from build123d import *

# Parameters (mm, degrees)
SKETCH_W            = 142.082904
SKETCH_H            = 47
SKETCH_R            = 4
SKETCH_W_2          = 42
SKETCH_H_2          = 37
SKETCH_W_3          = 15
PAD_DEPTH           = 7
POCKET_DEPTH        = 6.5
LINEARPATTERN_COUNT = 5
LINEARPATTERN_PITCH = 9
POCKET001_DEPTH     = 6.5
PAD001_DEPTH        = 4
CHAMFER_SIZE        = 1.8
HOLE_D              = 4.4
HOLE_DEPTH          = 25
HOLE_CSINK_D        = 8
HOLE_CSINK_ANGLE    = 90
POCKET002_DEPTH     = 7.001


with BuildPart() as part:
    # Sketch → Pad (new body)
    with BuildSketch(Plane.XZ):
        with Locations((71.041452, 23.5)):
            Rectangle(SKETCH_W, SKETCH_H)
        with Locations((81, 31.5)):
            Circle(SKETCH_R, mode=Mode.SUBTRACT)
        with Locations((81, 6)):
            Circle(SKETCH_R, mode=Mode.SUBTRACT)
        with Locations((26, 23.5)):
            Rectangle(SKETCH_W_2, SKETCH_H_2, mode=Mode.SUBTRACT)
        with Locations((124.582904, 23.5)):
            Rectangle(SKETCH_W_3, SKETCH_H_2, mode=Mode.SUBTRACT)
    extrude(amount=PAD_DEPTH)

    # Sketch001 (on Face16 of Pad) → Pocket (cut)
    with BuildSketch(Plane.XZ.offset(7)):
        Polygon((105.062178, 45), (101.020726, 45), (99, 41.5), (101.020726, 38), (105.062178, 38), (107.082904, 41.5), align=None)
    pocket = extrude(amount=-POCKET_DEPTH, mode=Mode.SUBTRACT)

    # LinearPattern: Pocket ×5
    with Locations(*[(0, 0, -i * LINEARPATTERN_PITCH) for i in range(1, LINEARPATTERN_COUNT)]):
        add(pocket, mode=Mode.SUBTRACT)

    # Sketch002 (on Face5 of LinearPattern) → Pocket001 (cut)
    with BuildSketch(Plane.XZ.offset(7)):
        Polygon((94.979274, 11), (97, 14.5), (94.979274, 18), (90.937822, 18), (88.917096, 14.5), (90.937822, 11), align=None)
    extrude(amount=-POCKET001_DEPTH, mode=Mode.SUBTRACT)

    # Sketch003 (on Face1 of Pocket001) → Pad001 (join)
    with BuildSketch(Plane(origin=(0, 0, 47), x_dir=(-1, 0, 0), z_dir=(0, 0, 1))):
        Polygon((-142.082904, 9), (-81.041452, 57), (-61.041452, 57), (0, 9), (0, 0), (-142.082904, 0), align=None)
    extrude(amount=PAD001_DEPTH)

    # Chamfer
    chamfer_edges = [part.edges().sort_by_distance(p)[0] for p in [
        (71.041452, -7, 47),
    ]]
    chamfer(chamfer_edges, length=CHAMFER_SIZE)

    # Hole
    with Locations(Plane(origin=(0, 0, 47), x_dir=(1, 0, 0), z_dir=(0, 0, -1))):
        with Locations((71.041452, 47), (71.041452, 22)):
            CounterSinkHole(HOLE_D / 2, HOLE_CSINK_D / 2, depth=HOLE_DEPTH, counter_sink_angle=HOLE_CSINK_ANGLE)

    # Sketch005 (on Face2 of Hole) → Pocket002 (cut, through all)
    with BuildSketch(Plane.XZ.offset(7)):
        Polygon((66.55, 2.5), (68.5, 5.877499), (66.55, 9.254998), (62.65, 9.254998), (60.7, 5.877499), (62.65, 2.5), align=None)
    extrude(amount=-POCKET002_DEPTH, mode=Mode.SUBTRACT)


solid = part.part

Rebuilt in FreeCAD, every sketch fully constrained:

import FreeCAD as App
import Part
import Sketcher

V = App.Vector
Q = App.Units.Quantity


def edges_at(feature, points):
    """Names of the edges that pass closest to the given points."""
    edges = feature.Shape.Edges
    near = lambda p: min(range(len(edges)), key=lambda i: edges[i].distToShape(Part.Vertex(*p))[0])
    return sorted({f"Edge{near(p) + 1}" for p in points})


def add_polygon(sketch, points):
    """Adds a closed chain of lines whose ends are joined by coincident constraints."""
    first, n = sketch.GeometryCount, len(points)
    for a, b in zip(points, points[1:] + points[:1]):
        sketch.addGeometry(Part.LineSegment(App.Vector(*a, 0), App.Vector(*b, 0)), False)
    for i in range(n):
        sketch.addConstraint(Sketcher.Constraint("Coincident", first + i, 2, first + (i + 1) % n, 1))

doc = App.newDocument("Part")
params = doc.addObject("Spreadsheet::Sheet", "Params")
for row, (alias, value) in enumerate([
    ("sketch1_diameter", "8 mm"),
    ("sketch1_width", "42 mm"),
    ("sketch1_width2", "15 mm"),
    ("sketch1_height", "47 mm"),
    ("sketch1_height2", "37 mm"),
    ("pad1_length", "7 mm"),
    ("pocket1_length", "6.5 mm"),
    ("linearpattern_pitch", "9 mm"),
    ("pocket2_length", "6.5 mm"),
    ("sketch4_width", "20 mm"),
    ("sketch4_height", "9 mm"),
    ("pad2_length", "4 mm"),
    ("chamfer_size", "1.8 mm"),
    ("sketch5_diameter", "4.4 mm"),
    ("hole_diameter", "4.4 mm"),
    ("hole_depth", "25 mm"),
    ("hole_csink_diameter", "8 mm"),
    ("sketch6_width", "3.9 mm"),
    ("sketch6_length", "3.9 mm"),
], start=1):
    params.set(f"A{row}", alias)
    params.set(f"B{row}", "=" + value)
    params.setAlias(f"B{row}", alias)

body = doc.addObject("PartDesign::Body", "Body")

sketch1 = doc.addObject("Sketcher::SketchObject", "Sketch")
body.addObject(sketch1)
sketch1.AttachmentSupport = (doc.XZ_Plane, [""])
sketch1.MapMode = "FlatFace"
add_polygon(sketch1, [(0, 47), (0, 0), (142.1, 0), (142.1, 47)])
sketch1.addGeometry(Part.Circle(V(81, 6, 0), V(0, 0, 1), 4), False)
add_polygon(sketch1, [(47, 5), (5, 5), (5, 42), (47, 42)])
sketch1.addGeometry(Part.Circle(V(81, 31.5, 0), V(0, 0, 1), 4), False)
add_polygon(sketch1, [(132.1, 5), (117.1, 5), (117.1, 42), (132.1, 42)])
sketch1.addConstraint([
    Sketcher.Constraint("Vertical", 0),
    Sketcher.Constraint("Horizontal", 1),
    Sketcher.Constraint("Vertical", 2),
    Sketcher.Constraint("Horizontal", 3),
    Sketcher.Constraint("Horizontal", 5),
    Sketcher.Constraint("Vertical", 6),
    Sketcher.Constraint("Horizontal", 7),
    Sketcher.Constraint("Vertical", 8),
    Sketcher.Constraint("Horizontal", 10),
    Sketcher.Constraint("Vertical", 11),
    Sketcher.Constraint("Horizontal", 12),
    Sketcher.Constraint("Vertical", 13),
    Sketcher.Constraint("Coincident", 0, 2, -1, 1),
    Sketcher.Constraint("Equal", 4, 9),
    Sketcher.Constraint("Horizontal", 8, 2, 10, 2),
    Sketcher.Constraint("Horizontal", 7, 2, 11, 2),
    Sketcher.Constraint("Vertical", 4, 3, 9, 3),
    Sketcher.Constraint("Diameter", 4, Q("8 mm")),
    Sketcher.Constraint("DistanceX", 5, 2, 5, 1, Q("42 mm")),
    Sketcher.Constraint("DistanceX", 10, 2, 10, 1, Q("15 mm")),
    Sketcher.Constraint("DistanceY", 0, 2, 0, 1, Q("47 mm")),
    Sketcher.Constraint("DistanceY", 6, 1, 6, 2, Q("37 mm")),
    Sketcher.Constraint("DistanceX", -1, 1, 4, 3, Q("81 mm")),
    Sketcher.Constraint("DistanceY", -1, 1, 4, 3, Q("6 mm")),
    Sketcher.Constraint("DistanceX", -1, 1, 5, 2, Q("5 mm")),
    Sketcher.Constraint("DistanceY", -1, 1, 5, 2, Q("5 mm")),
    Sketcher.Constraint("DistanceX", 10, 2, 1, 2, Q("25 mm")),
    Sketcher.Constraint("DistanceY", -1, 1, 9, 3, Q("31.5 mm")),
    Sketcher.Constraint("DistanceX", 1, 1, 1, 2, Q("142.082904 mm")),
])
sketch1.setExpression("Constraints[29]", "Params.sketch1_diameter")
sketch1.setExpression("Constraints[30]", "Params.sketch1_width")
sketch1.setExpression("Constraints[31]", "Params.sketch1_width2")
sketch1.setExpression("Constraints[32]", "Params.sketch1_height")
sketch1.setExpression("Constraints[33]", "Params.sketch1_height2")
pad1 = doc.addObject("PartDesign::Pad", "Pad")
body.addObject(pad1)
pad1.Profile = sketch1
pad1.setExpression("Length", "Params.pad1_length")

sketch2 = doc.addObject("Sketcher::SketchObject", "Sketch001")
body.addObject(sketch2)
sketch2.AttachmentSupport = (doc.XZ_Plane, [""])
sketch2.MapMode = "FlatFace"
sketch2.AttachmentOffset = App.Placement(V(0, 0, 7), App.Rotation())
add_polygon(sketch2, [(105.1, 45), (101, 45), (99, 41.5), (101, 38), (105.1, 38), (107.1, 41.5)])
sketch2.addConstraint([
    Sketcher.Constraint("Horizontal", 0),
    Sketcher.Constraint("Horizontal", 3),
    Sketcher.Constraint("Parallel", 1, 4),
    Sketcher.Constraint("Parallel", 2, 5),
    Sketcher.Constraint("Horizontal", 1, 2, 4, 2),
    Sketcher.Constraint("Vertical", 0, 2, 2, 2),
    Sketcher.Constraint("Vertical", 3, 2, 5, 2),
    Sketcher.Constraint("Angle", 1, Q("-120.000001 deg")),
    Sketcher.Constraint("DistanceY", -1, 1, 0, 2, Q("45 mm")),
    Sketcher.Constraint("DistanceX", -1, 1, 1, 2, Q("99 mm")),
    Sketcher.Constraint("DistanceY", -1, 1, 2, 2, Q("38 mm")),
    Sketcher.Constraint("DistanceX", 0, 2, 0, 1, Q("4.041452 mm")),
])
pocket1 = doc.addObject("PartDesign::Pocket", "Pocket")
body.addObject(pocket1)
pocket1.Profile = sketch2
pocket1.setExpression("Length", "Params.pocket1_length")
doc.recompute()

linearpattern = doc.addObject("PartDesign::LinearPattern", "LinearPattern")
body.addObject(linearpattern)
linearpattern.Originals = [pocket1]
linearpattern.Direction = (doc.Z_Axis, [""])
linearpattern.Mode = "offset"
linearpattern.setExpression("Offset", "Params.linearpattern_pitch")
linearpattern.Occurrences = 5
linearpattern.Reversed = True
body.Tip = linearpattern

sketch3 = doc.addObject("Sketcher::SketchObject", "Sketch002")
body.addObject(sketch3)
sketch3.AttachmentSupport = (doc.XZ_Plane, [""])
sketch3.MapMode = "FlatFace"
sketch3.AttachmentOffset = App.Placement(V(0, 0, 7), App.Rotation())
add_polygon(sketch3, [(95, 11), (97, 14.5), (95, 18), (90.9, 18), (88.9, 14.5), (90.9, 11)])
sketch3.addConstraint([
    Sketcher.Constraint("Horizontal", 2),
    Sketcher.Constraint("Horizontal", 5),
    Sketcher.Constraint("Parallel", 0, 3),
    Sketcher.Constraint("Parallel", 1, 4),
    Sketcher.Constraint("Horizontal", 0, 2, 3, 2),
    Sketcher.Constraint("Vertical", 2, 2, 4, 2),
    Sketcher.Constraint("Vertical", 1, 2, 5, 2),
    Sketcher.Constraint("Angle", 0, Q("59.999999 deg")),
    Sketcher.Constraint("DistanceX", -1, 1, 0, 2, Q("97 mm")),
    Sketcher.Constraint("DistanceY", -1, 1, 1, 2, Q("18 mm")),
    Sketcher.Constraint("DistanceY", -1, 1, 4, 2, Q("11 mm")),
    Sketcher.Constraint("DistanceX", 2, 2, 2, 1, Q("4.041452 mm")),
])
pocket2 = doc.addObject("PartDesign::Pocket", "Pocket001")
body.addObject(pocket2)
pocket2.Profile = sketch3
pocket2.setExpression("Length", "Params.pocket2_length")

sketch4 = doc.addObject("Sketcher::SketchObject", "Sketch003")
body.addObject(sketch4)
sketch4.AttachmentSupport = (doc.XY_Plane, [""])
sketch4.MapMode = "FlatFace"
sketch4.AttachmentOffset = App.Placement(V(0, 0, 47), App.Rotation())
add_polygon(sketch4, [(81, -57), (142, -9), (142, 0), (0, 0), (0, -9), (61, -57)])
sketch4.addConstraint([
    Sketcher.Constraint("Vertical", 1),
    Sketcher.Constraint("Horizontal", 2),
    Sketcher.Constraint("Vertical", 3),
    Sketcher.Constraint("Horizontal", 5),
    Sketcher.Constraint("Coincident", 2, 2, -1, 1),
    Sketcher.Constraint("Horizontal", 0, 2, 3, 2),
    Sketcher.Constraint("Equal", 0, 4),
    Sketcher.Constraint("DistanceX", 5, 1, 5, 2, Q("20 mm")),
    Sketcher.Constraint("DistanceY", 1, 1, 1, 2, Q("9 mm")),
    Sketcher.Constraint("DistanceY", 4, 2, -1, 1, Q("57 mm")),
    Sketcher.Constraint("DistanceX", 2, 2, 2, 1, Q("142.082904 mm")),
])
sketch4.setExpression("Constraints[13]", "Params.sketch4_width")
sketch4.setExpression("Constraints[14]", "Params.sketch4_height")
pad2 = doc.addObject("PartDesign::Pad", "Pad001")
body.addObject(pad2)
pad2.Profile = sketch4
pad2.setExpression("Length", "Params.pad2_length")
doc.recompute()

chamfer = doc.addObject("PartDesign::Chamfer", "Chamfer")
body.addObject(chamfer)
chamfer.Base = (pad2, edges_at(pad2, [(71.041, -7, 47)]))
chamfer.setExpression("Size", "Params.chamfer_size")

sketch5 = doc.addObject("Sketcher::SketchObject", "Sketch004")
body.addObject(sketch5)
sketch5.AttachmentSupport = (doc.XY_Plane, [""])
sketch5.MapMode = "FlatFace"
sketch5.AttachmentOffset = App.Placement(V(0, 0, 47), App.Rotation())
sketch5.addGeometry([
    Part.Circle(V(71, -47, 0), V(0, 0, 1), 2.2),
    Part.Circle(V(71, -22, 0), V(0, 0, 1), 2.2),
], False)
sketch5.addConstraint([
    Sketcher.Constraint("Equal", 0, 1),
    Sketcher.Constraint("Vertical", 0, 3, 1, 3),
    Sketcher.Constraint("Diameter", 0, Q("4.4 mm")),
    Sketcher.Constraint("DistanceY", 0, 3, -1, 1, Q("47 mm")),
    Sketcher.Constraint("DistanceY", 1, 3, -1, 1, Q("22 mm")),
    Sketcher.Constraint("DistanceX", -1, 1, 0, 3, Q("71.041452 mm")),
])
sketch5.setExpression("Constraints[2]", "Params.sketch5_diameter")
doc.recompute()
hole = doc.addObject("PartDesign::Hole", "Hole")
body.addObject(hole)
hole.Profile = sketch5
hole.ThreadType = "None"
hole.setExpression("Diameter", "Params.hole_diameter")
hole.DepthType = "Dimension"
hole.setExpression("Depth", "Params.hole_depth")
hole.DrillPoint = "Flat"
hole.HoleCutType = "Countersink"
hole.setExpression("HoleCutDiameter", "Params.hole_csink_diameter")
hole.HoleCutCountersinkAngle = 90
hole.Reversed = True

sketch6 = doc.addObject("Sketcher::SketchObject", "Sketch005")
body.addObject(sketch6)
sketch6.AttachmentSupport = (doc.XZ_Plane, [""])
sketch6.MapMode = "FlatFace"
sketch6.AttachmentOffset = App.Placement(V(0, 0, 7), App.Rotation())
add_polygon(sketch6, [(66.5, 2.5), (68.5, 5.9), (66.5, 9.3), (62.6, 9.3), (60.7, 5.9), (62.6, 2.5)])
sketch6.addConstraint([
    Sketcher.Constraint("Horizontal", 2),
    Sketcher.Constraint("Horizontal", 5),
    Sketcher.Constraint("Parallel", 0, 3),
    Sketcher.Constraint("Parallel", 1, 4),
    Sketcher.Constraint("Horizontal", 0, 2, 3, 2),
    Sketcher.Constraint("Vertical", 2, 2, 4, 2),
    Sketcher.Constraint("Vertical", 1, 2, 5, 2),
    Sketcher.Constraint("Angle", 0, Q("59.999999 deg")),
    Sketcher.Constraint("DistanceX", 2, 2, 2, 1, Q("3.9 mm")),
    Sketcher.Constraint("Distance", 0, Q("3.9 mm")),
    Sketcher.Constraint("DistanceX", -1, 1, 0, 2, Q("68.5 mm")),
    Sketcher.Constraint("DistanceY", -1, 1, 4, 2, Q("2.5 mm")),
])
sketch6.setExpression("Constraints[14]", "Params.sketch6_width")
sketch6.setExpression("Constraints[15]", "Params.sketch6_length")
pocket3 = doc.addObject("PartDesign::Pocket", "Pocket002")
body.addObject(pocket3)
pocket3.Profile = sketch6
pocket3.Type = "ThroughAll"

doc.recompute()
